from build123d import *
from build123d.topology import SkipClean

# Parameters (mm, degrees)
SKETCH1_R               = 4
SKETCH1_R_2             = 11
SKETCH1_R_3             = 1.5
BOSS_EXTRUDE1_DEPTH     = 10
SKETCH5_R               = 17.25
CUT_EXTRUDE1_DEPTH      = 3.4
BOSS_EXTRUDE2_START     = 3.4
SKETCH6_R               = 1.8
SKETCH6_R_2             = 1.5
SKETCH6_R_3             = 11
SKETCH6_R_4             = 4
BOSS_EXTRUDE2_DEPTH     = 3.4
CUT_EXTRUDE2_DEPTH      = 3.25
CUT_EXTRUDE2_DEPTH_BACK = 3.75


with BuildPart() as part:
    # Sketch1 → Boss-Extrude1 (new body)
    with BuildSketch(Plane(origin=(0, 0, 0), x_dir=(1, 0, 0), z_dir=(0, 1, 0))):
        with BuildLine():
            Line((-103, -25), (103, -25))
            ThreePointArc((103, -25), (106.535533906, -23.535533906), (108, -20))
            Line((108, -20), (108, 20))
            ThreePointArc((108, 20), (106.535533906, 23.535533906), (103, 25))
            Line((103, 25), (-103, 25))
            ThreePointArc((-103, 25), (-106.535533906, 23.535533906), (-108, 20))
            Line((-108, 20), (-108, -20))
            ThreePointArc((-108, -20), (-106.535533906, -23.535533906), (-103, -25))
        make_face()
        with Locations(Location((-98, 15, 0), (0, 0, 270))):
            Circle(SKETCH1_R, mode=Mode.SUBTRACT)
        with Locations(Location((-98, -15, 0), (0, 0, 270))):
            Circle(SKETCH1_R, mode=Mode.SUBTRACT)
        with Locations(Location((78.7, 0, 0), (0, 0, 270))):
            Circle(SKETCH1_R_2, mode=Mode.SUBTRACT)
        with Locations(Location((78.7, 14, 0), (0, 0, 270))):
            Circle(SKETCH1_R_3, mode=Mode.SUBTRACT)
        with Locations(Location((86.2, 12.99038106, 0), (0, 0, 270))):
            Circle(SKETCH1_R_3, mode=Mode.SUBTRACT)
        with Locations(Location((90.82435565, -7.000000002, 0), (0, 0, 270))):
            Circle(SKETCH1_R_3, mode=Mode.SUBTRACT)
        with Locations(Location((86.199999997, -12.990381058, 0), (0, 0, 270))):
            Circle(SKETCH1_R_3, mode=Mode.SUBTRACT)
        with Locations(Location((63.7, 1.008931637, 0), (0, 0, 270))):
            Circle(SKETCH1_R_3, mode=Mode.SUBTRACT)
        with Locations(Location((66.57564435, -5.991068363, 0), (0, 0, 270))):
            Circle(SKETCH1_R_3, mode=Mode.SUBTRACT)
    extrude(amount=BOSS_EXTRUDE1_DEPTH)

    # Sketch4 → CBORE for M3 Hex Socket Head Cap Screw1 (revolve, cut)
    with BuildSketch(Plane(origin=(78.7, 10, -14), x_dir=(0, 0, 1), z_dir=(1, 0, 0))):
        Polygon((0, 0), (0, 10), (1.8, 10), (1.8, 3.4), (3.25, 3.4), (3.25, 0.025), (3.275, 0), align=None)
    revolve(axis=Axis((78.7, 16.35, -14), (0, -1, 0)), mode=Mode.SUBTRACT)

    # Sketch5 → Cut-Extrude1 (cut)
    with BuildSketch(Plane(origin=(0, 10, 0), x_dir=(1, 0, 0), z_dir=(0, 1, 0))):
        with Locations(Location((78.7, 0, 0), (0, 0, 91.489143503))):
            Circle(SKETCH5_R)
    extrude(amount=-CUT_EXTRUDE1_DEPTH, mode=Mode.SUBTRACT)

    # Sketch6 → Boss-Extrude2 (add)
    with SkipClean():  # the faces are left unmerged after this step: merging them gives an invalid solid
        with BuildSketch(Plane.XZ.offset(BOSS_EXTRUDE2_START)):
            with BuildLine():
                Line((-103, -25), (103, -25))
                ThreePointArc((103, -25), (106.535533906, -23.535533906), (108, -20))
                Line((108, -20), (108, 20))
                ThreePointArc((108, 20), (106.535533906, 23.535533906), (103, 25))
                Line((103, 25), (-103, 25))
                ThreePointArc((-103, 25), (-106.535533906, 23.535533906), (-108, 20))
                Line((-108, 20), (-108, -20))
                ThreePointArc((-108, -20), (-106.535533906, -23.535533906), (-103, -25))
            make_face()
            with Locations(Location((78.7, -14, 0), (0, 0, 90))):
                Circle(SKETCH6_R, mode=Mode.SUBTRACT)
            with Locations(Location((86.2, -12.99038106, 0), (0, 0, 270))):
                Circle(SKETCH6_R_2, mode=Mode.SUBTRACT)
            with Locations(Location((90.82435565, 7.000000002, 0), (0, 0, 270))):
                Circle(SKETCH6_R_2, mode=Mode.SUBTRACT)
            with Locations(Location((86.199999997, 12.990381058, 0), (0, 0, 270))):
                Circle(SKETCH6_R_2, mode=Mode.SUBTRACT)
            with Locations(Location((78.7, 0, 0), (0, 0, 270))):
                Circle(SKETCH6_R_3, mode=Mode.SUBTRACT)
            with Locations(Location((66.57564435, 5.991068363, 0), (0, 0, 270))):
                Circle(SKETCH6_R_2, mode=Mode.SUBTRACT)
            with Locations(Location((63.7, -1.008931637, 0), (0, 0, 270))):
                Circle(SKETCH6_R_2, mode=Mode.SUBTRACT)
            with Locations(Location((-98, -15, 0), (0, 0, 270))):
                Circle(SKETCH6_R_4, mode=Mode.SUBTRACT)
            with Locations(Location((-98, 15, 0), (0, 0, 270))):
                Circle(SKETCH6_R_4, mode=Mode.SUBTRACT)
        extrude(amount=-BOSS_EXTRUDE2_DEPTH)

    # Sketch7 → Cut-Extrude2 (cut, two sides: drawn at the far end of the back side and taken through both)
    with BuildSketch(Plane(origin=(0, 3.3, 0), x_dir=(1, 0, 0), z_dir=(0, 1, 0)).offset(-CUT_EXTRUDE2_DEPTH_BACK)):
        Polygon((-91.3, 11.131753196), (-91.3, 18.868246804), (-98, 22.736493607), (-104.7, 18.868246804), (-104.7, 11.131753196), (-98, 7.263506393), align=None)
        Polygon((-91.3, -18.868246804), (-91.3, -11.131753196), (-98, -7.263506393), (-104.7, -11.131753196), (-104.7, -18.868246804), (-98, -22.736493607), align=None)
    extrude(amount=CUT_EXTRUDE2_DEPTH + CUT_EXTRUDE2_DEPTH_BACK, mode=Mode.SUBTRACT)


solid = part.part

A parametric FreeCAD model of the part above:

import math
import FreeCAD as App
import Part
import Sketcher
from FreeCAD import Vector
Q = App.Units.Quantity

doc = App.newDocument("Part")
body = doc.addObject("PartDesign::Body", "Body")

# Sketch on XZ plane
sketch1 = body.newObject("Sketcher::SketchObject", "Sketch")
sketch1.AttachmentSupport = (doc.getObject("XZ_Plane"), [""])
sketch1.MapMode = "FlatFace"
sketch1.addGeometry(Part.LineSegment(Vector(-103, 25, 0), Vector(103, 25, 0)), False)
sketch1.addGeometry(Part.ArcOfCircle(Part.Circle(Vector(103, 20, 0), Vector(0, 0, 1), 5), math.radians(0), math.radians(90)), False)
sketch1.addGeometry(Part.LineSegment(Vector(108, 20, 0), Vector(108, -20, 0)), False)
sketch1.addGeometry(Part.ArcOfCircle(Part.Circle(Vector(103, -20, 0), Vector(0, 0, 1), 5), math.radians(-90), math.radians(0)), False)
sketch1.addGeometry(Part.LineSegment(Vector(103, -25, 0), Vector(-103, -25, 0)), False)
sketch1.addGeometry(Part.ArcOfCircle(Part.Circle(Vector(-103, -20, 0), Vector(0, 0, 1), 5), math.radians(180), math.radians(270)), False)
sketch1.addGeometry(Part.LineSegment(Vector(-108, -20, 0), Vector(-108, 20, 0)), False)
sketch1.addGeometry(Part.ArcOfCircle(Part.Circle(Vector(-103, 20, 0), Vector(0, 0, 1), 5), math.radians(90), math.radians(180)), False)
sketch1.addGeometry(Part.Circle(Vector(-98, 15, 0), Vector(0, 0, 1), 4), False)
sketch1.addGeometry(Part.Circle(Vector(86.2, 13, 0), Vector(0, 0, 1), 1.5), False)
sketch1.addGeometry(Part.Circle(Vector(66.6, 6, 0), Vector(0, 0, 1), 1.5), False)
sketch1.addGeometry(Part.Circle(Vector(90.8, 7, 0), Vector(0, 0, 1), 1.5), False)
sketch1.addGeometry(Part.Circle(Vector(-98, -15, 0), Vector(0, 0, 1), 4), False)
sketch1.addGeometry(Part.Circle(Vector(63.7, -1, 0), Vector(0, 0, 1), 1.5), False)
sketch1.addGeometry(Part.Circle(Vector(78.7, 0, 0), Vector(0, 0, 1), 11), False)
sketch1.addGeometry(Part.Circle(Vector(78.7, -14, 0), Vector(0, 0, 1), 1.5), False)
sketch1.addGeometry(Part.Circle(Vector(86.2, -13, 0), Vector(0, 0, 1), 1.5), False)
sketch1.addConstraint(Sketcher.Constraint("Tangent", 0, 2, 1, 2))
sketch1.addConstraint(Sketcher.Constraint("Tangent", 1, 1, 2, 1))
sketch1.addConstraint(Sketcher.Constraint("Tangent", 2, 2, 3, 2))
sketch1.addConstraint(Sketcher.Constraint("Tangent", 3, 1, 4, 1))
sketch1.addConstraint(Sketcher.Constraint("Tangent", 4, 2, 5, 2))
sketch1.addConstraint(Sketcher.Constraint("Tangent", 5, 1, 6, 1))
sketch1.addConstraint(Sketcher.Constraint("Tangent", 6, 2, 7, 2))
sketch1.addConstraint(Sketcher.Constraint("Tangent", 7, 1, 0, 1))
sketch1.addConstraint(Sketcher.Constraint("Horizontal", 0))
sketch1.addConstraint(Sketcher.Constraint("Vertical", 2))
sketch1.addConstraint(Sketcher.Constraint("Horizontal", 4))
sketch1.addConstraint(Sketcher.Constraint("Vertical", 6))
sketch1.addConstraint(Sketcher.Constraint("Equal", 1, 3))
sketch1.addConstraint(Sketcher.Constraint("Equal", 3, 5))
sketch1.addConstraint(Sketcher.Constraint("Equal", 5, 7))
sketch1.addConstraint(Sketcher.Constraint("Equal", 9, 10))
sketch1.addConstraint(Sketcher.Constraint("Equal", 10, 11))
sketch1.addConstraint(Sketcher.Constraint("Equal", 8, 12))
sketch1.addConstraint(Sketcher.Constraint("Equal", 11, 13))
sketch1.addConstraint(Sketcher.Constraint("Equal", 13, 15))
sketch1.addConstraint(Sketcher.Constraint("Equal", 15, 16))
sketch1.addConstraint(Sketcher.Constraint("Symmetric", 1, 3, 5, 3, -1, 1))
sketch1.addConstraint(Sketcher.Constraint("Symmetric", 8, 3, 12, 3, -1))
sketch1.addConstraint(Sketcher.Constraint("Symmetric", 9, 3, 16, 3, -1))
sketch1.addConstraint(Sketcher.Constraint("PointOnObject", 14, 3, -1))
sketch1.addConstraint(Sketcher.Constraint("Vertical", 14, 3, 15, 3))
sketch1.addConstraint(Sketcher.Constraint("Diameter", 8, Q("8 mm")))
sketch1.addConstraint(Sketcher.Constraint("Diameter", 9, Q("3 mm")))
sketch1.addConstraint(Sketcher.Constraint("Diameter", 14, Q("22 mm")))
sketch1.addConstraint(Sketcher.Constraint("Radius", 1, Q("5 mm")))
sketch1.addConstraint(Sketcher.Constraint("DistanceX", 0, 1, 0, 2, Q("206 mm")))
sketch1.addConstraint(Sketcher.Constraint("DistanceY", 2, 2, 2, 1, Q("40 mm")))
sketch1.addConstraint(Sketcher.Constraint("DistanceX", 8, 3, -1, 1, Q("98 mm")))
sketch1.addConstraint(Sketcher.Constraint("DistanceY", -1, 1, 8, 3, Q("15 mm")))
sketch1.addConstraint(Sketcher.Constraint("DistanceY", -1, 1, 11, 3, Q("7 mm")))
sketch1.addConstraint(Sketcher.Constraint("DistanceY", 15, 3, -1, 1, Q("14 mm")))
sketch1.addConstraint(Sketcher.Constraint("DistanceY", 13, 3, 10, 3, Q("7 mm")))
sketch1.addConstraint(Sketcher.Constraint("DistanceX", 13, 3, 14, 3, Q("15 mm")))
sketch1.addConstraint(Sketcher.Constraint("DistanceX", -1, 1, 9, 3, Q("86.2 mm")))
sketch1.addConstraint(Sketcher.Constraint("DistanceX", -1, 1, 13, 3, Q("63.7 mm")))
sketch1.addConstraint(Sketcher.Constraint("DistanceY", -1, 1, 9, 3, Q("12.990381 mm")))
sketch1.addConstraint(Sketcher.Constraint("DistanceY", -1, 1, 10, 3, Q("5.991068 mm")))
sketch1.addConstraint(Sketcher.Constraint("DistanceX", 10, 3, 11, 3, Q("24.248711 mm")))
sketch1.addConstraint(Sketcher.Constraint("DistanceX", -1, 1, 10, 3, Q("66.575644 mm")))
pad1 = body.newObject("PartDesign::Pad", "Pad")
pad1.Profile = sketch1
pad1.Length = 10
pad1.Reversed = True

# Sketch on YZ plane
sketch2 = body.newObject("Sketcher::SketchObject", "Sketch001")
sketch2.AttachmentSupport = (doc.getObject("YZ_Plane"), [""])
sketch2.MapMode = "FlatFace"
sketch2.AttachmentOffset = App.Placement(Vector(0, 0, 78.7), App.Rotation())
sketch2.addGeometry(Part.LineSegment(Vector(0, -14, 0), Vector(10, -14, 0)), False)
sketch2.addGeometry(Part.LineSegment(Vector(10, -14, 0), Vector(10, -10.725, 0)), False)
sketch2.addGeometry(Part.LineSegment(Vector(10, -10.725, 0), Vector(9.975, -10.75, 0)), False)
sketch2.addGeometry(Part.LineSegment(Vector(9.975, -10.75, 0), Vector(6.6, -10.75, 0)), False)
sketch2.addGeometry(Part.LineSegment(Vector(6.6, -10.75, 0), Vector(6.6, -12.2, 0)), False)
sketch2.addGeometry(Part.LineSegment(Vector(6.6, -12.2, 0), Vector(0, -12.2, 0)), False)
sketch2.addGeometry(Part.LineSegment(Vector(0, -12.2, 0), Vector(0, -14, 0)), False)
sketch2.addGeometry(Part.LineSegment(Vector(10, -14, 0), Vector(0, -14, 0)), True)  # axis
sketch2.addConstraint(Sketcher.Constraint("Coincident", 0, 2, 1, 1))
sketch2.addConstraint(Sketcher.Constraint("Coincident", 1, 2, 2, 1))
sketch2.addConstraint(Sketcher.Constraint("Coincident", 2, 2, 3, 1))
sketch2.addConstraint(Sketcher.Constraint("Coincident", 3, 2, 4, 1))
sketch2.addConstraint(Sketcher.Constraint("Coincident", 4, 2, 5, 1))
sketch2.addConstraint(Sketcher.Constraint("Coincident", 5, 2, 6, 1))
sketch2.addConstraint(Sketcher.Constraint("Coincident", 6, 2, 0, 1))
sketch2.addConstraint(Sketcher.Constraint("Horizontal", 0))
sketch2.addConstraint(Sketcher.Constraint("Vertical", 1))
sketch2.addConstraint(Sketcher.Constraint("Horizontal", 3))
sketch2.addConstraint(Sketcher.Constraint("Vertical", 4))
sketch2.addConstraint(Sketcher.Constraint("Horizontal", 5))
sketch2.addConstraint(Sketcher.Constraint("Vertical", 6))
sketch2.addConstraint(Sketcher.Constraint("Horizontal", 7))
sketch2.addConstraint(Sketcher.Constraint("Coincident", 7, 1, 0, 2))
sketch2.addConstraint(Sketcher.Constraint("PointOnObject", 5, 2, -2))
sketch2.addConstraint(Sketcher.Constraint("PointOnObject", 7, 2, -2))
sketch2.addConstraint(Sketcher.Constraint("DistanceX", 0, 1, 0, 2, Q("10 mm")))
sketch2.addConstraint(Sketcher.Constraint("Angle", 2, Q("-135 deg")))
sketch2.addConstraint(Sketcher.Constraint("DistanceX", 5, 2, 5, 1, Q("6.6 mm")))
sketch2.addConstraint(Sketcher.Constraint("DistanceY", 6, 2, 6, 1, Q("1.8 mm")))
sketch2.addConstraint(Sketcher.Constraint("DistanceY", 0, 2, -1, 1, Q("14 mm")))
sketch2.addConstraint(Sketcher.Constraint("DistanceY", 4, 2, 4, 1, Q("1.45 mm")))
sketch2.addConstraint(Sketcher.Constraint("DistanceX", 3, 2, 3, 1, Q("3.375 mm")))
groove = body.newObject("PartDesign::Groove", "Groove")
groove.Profile = sketch2
groove.ReferenceAxis = (sketch2, ["Axis0"])
groove.Angle = 360

# Sketch on XZ plane
sketch3 = body.newObject("Sketcher::SketchObject", "Sketch002")
sketch3.AttachmentSupport = (doc.getObject("XZ_Plane"), [""])
sketch3.MapMode = "FlatFace"
sketch3.AttachmentOffset = App.Placement(Vector(0, 0, -10), App.Rotation())
sketch3.addGeometry(Part.Circle(Vector(79, 0, 0), Vector(0, 0, 1), 17), False)
sketch3.addConstraint(Sketcher.Constraint("PointOnObject", 0, 3, -1))
sketch3.addConstraint(Sketcher.Constraint("Diameter", 0, Q("34.5 mm")))
sketch3.addConstraint(Sketcher.Constraint("DistanceX", -1, 1, 0, 3, Q("78.7 mm")))
pocket1 = body.newObject("PartDesign::Pocket", "Pocket")
pocket1.Profile = sketch3
pocket1.Length = 3.4
pocket1.Reversed = True

# Sketch on XZ plane
sketch4 = body.newObject("Sketcher::SketchObject", "Sketch003")
sketch4.AttachmentSupport = (doc.getObject("XZ_Plane"), [""])
sketch4.MapMode = "FlatFace"
sketch4.AttachmentOffset = App.Placement(Vector(0, 0, 3.4), App.Rotation())
sketch4.addGeometry(Part.LineSegment(Vector(-103, -25, 0), Vector(103, -25, 0)), False)
sketch4.addGeometry(Part.ArcOfCircle(Part.Circle(Vector(103, -20, 0), Vector(0, 0, 1), 5), math.radians(-90), math.radians(0)), False)
sketch4.addGeometry(Part.LineSegment(Vector(108, -20, 0), Vector(108, 20, 0)), False)
sketch4.addGeometry(Part.ArcOfCircle(Part.Circle(Vector(103, 20, 0), Vector(0, 0, 1), 5), math.radians(0), math.radians(90)), False)
sketch4.addGeometry(Part.LineSegment(Vector(103, 25, 0), Vector(-103, 25, 0)), False)
sketch4.addGeometry(Part.ArcOfCircle(Part.Circle(Vector(-103, 20, 0), Vector(0, 0, 1), 5), math.radians(90), math.radians(180)), False)
sketch4.addGeometry(Part.LineSegment(Vector(-108, 20, 0), Vector(-108, -20, 0)), False)
sketch4.addGeometry(Part.ArcOfCircle(Part.Circle(Vector(-103, -20, 0), Vector(0, 0, 1), 5), math.radians(180), math.radians(270)), False)
sketch4.addGeometry(Part.Circle(Vector(-98, -15, 0), Vector(0, 0, 1), 4), False)
sketch4.addGeometry(Part.Circle(Vector(78.7, -14, 0), Vector(0, 0, 1), 1.8), False)
sketch4.addGeometry(Part.Circle(Vector(86.2, -13, 0), Vector(0, 0, 1), 1.5), False)
sketch4.addGeometry(Part.Circle(Vector(63.7, -1, 0), Vector(0, 0, 1), 1.5), False)
sketch4.addGeometry(Part.Circle(Vector(-98, 15, 0), Vector(0, 0, 1), 4), False)
sketch4.addGeometry(Part.Circle(Vector(78.7, 0, 0), Vector(0, 0, 1), 11), False)
sketch4.addGeometry(Part.Circle(Vector(66.6, 6, 0), Vector(0, 0, 1), 1.5), False)
sketch4.addGeometry(Part.Circle(Vector(90.8, 7, 0), Vector(0, 0, 1), 1.5), False)
sketch4.addGeometry(Part.Circle(Vector(86.2, 13, 0), Vector(0, 0, 1), 1.5), False)
sketch4.addConstraint(Sketcher.Constraint("Tangent", 0, 2, 1, 1))
sketch4.addConstraint(Sketcher.Constraint("Tangent", 1, 2, 2, 1))
sketch4.addConstraint(Sketcher.Constraint("Tangent", 2, 2, 3, 1))
sketch4.addConstraint(Sketcher.Constraint("Tangent", 3, 2, 4, 1))
sketch4.addConstraint(Sketcher.Constraint("Tangent", 4, 2, 5, 1))
sketch4.addConstraint(Sketcher.Constraint("Tangent", 5, 2, 6, 1))
sketch4.addConstraint(Sketcher.Constraint("Tangent", 6, 2, 7, 1))
sketch4.addConstraint(Sketcher.Constraint("Tangent", 7, 2, 0, 1))
sketch4.addConstraint(Sketcher.Constraint("Horizontal", 0))
sketch4.addConstraint(Sketcher.Constraint("Vertical", 2))
sketch4.addConstraint(Sketcher.Constraint("Horizontal", 4))
sketch4.addConstraint(Sketcher.Constraint("Vertical", 6))
sketch4.addConstraint(Sketcher.Constraint("Equal", 1, 3))
sketch4.addConstraint(Sketcher.Constraint("Equal", 3, 5))
sketch4.addConstraint(Sketcher.Constraint("Equal", 5, 7))
sketch4.addConstraint(Sketcher.Constraint("Equal", 10, 11))
sketch4.addConstraint(Sketcher.Constraint("Equal", 8, 12))
sketch4.addConstraint(Sketcher.Constraint("Equal", 11, 14))
sketch4.addConstraint(Sketcher.Constraint("Equal", 14, 15))
sketch4.addConstraint(Sketcher.Constraint("Equal", 15, 16))
sketch4.addConstraint(Sketcher.Constraint("Symmetric", 1, 3, 5, 3, -1, 1))
sketch4.addConstraint(Sketcher.Constraint("Symmetric", 8, 3, 12, 3, -1))
sketch4.addConstraint(Sketcher.Constraint("Symmetric", 10, 3, 16, 3, -1))
sketch4.addConstraint(Sketcher.Constraint("PointOnObject", 13, 3, -1))
sketch4.addConstraint(Sketcher.Constraint("Vertical", 9, 3, 13, 3))
sketch4.addConstraint(Sketcher.Constraint("Diameter", 8, Q("8 mm")))
sketch4.addConstraint(Sketcher.Constraint("Diameter", 10, Q("3 mm")))
sketch4.addConstraint(Sketcher.Constraint("Diameter", 13, Q("22 mm")))
sketch4.addConstraint(Sketcher.Constraint("Radius", 1, Q("5 mm")))
sketch4.addConstraint(Sketcher.Constraint("Diameter", 9, Q("3.6 mm")))
sketch4.addConstraint(Sketcher.Constraint("DistanceX", 0, 1, 0, 2, Q("206 mm")))
sketch4.addConstraint(Sketcher.Constraint("DistanceY", 2, 1, 2, 2, Q("40 mm")))
sketch4.addConstraint(Sketcher.Constraint("DistanceX", 8, 3, -1, 1, Q("98 mm")))
sketch4.addConstraint(Sketcher.Constraint("DistanceY", 8, 3, -1, 1, Q("15 mm")))
sketch4.addConstraint(Sketcher.Constraint("DistanceY", 9, 3, -1, 1, Q("14 mm")))
sketch4.addConstraint(Sketcher.Constraint("DistanceY", -1, 1, 15, 3, Q("7 mm")))
sketch4.addConstraint(Sketcher.Constraint("DistanceX", 11, 3, 9, 3, Q("15 mm")))
sketch4.addConstraint(Sketcher.Constraint("DistanceY", 11, 3, 14, 3, Q("7 mm")))
sketch4.addConstraint(Sketcher.Constraint("DistanceX", -1, 1, 9, 3, Q("78.7 mm")))
sketch4.addConstraint(Sketcher.Constraint("DistanceX", -1, 1, 10, 3, Q("86.2 mm")))
sketch4.addConstraint(Sketcher.Constraint("DistanceY", 10, 3, -1, 1, Q("12.990381 mm")))
sketch4.addConstraint(Sketcher.Constraint("DistanceY", 11, 3, -1, 1, Q("1.008932 mm")))
sketch4.addConstraint(Sketcher.Constraint("DistanceX", 14, 3, 15, 3, Q("24.248711 mm")))
sketch4.addConstraint(Sketcher.Constraint("DistanceX", -1, 1, 14, 3, Q("66.575644 mm")))
pad2 = body.newObject("PartDesign::Pad", "Pad001")
pad2.Profile = sketch4
pad2.Length = 3.4
pad2.Reversed = True

# Sketch on XZ plane
sketch5 = body.newObject("Sketcher::SketchObject", "Sketch004")
sketch5.AttachmentSupport = (doc.getObject("XZ_Plane"), [""])
sketch5.MapMode = "FlatFace"
sketch5.AttachmentOffset = App.Placement(Vector(0, 0, -3.3), App.Rotation())
sketch5.addGeometry(Part.LineSegment(Vector(-91, -11, 0), Vector(-91, -19, 0)), False)
sketch5.addGeometry(Part.LineSegment(Vector(-91, -19, 0), Vector(-98, -23, 0)), False)
sketch5.addGeometry(Part.LineSegment(Vector(-98, -23, 0), Vector(-105, -19, 0)), False)
sketch5.addGeometry(Part.LineSegment(Vector(-105, -19, 0), Vector(-105, -11, 0)), False)
sketch5.addGeometry(Part.LineSegment(Vector(-105, -11, 0), Vector(-98, -7, 0)), False)
sketch5.addGeometry(Part.LineSegment(Vector(-98, -7, 0), Vector(-91, -11, 0)), False)
sketch5.addGeometry(Part.LineSegment(Vector(-91, 19, 0), Vector(-91, 11, 0)), False)
sketch5.addGeometry(Part.LineSegment(Vector(-91, 11, 0), Vector(-98, 7, 0)), False)
sketch5.addGeometry(Part.LineSegment(Vector(-98, 7, 0), Vector(-105, 11, 0)), False)
sketch5.addGeometry(Part.LineSegment(Vector(-105, 11, 0), Vector(-105, 19, 0)), False)
sketch5.addGeometry(Part.LineSegment(Vector(-105, 19, 0), Vector(-98, 23, 0)), False)
sketch5.addGeometry(Part.LineSegment(Vector(-98, 23, 0), Vector(-91, 19, 0)), False)
sketch5.addConstraint(Sketcher.Constraint("Coincident", 0, 2, 1, 1))
sketch5.addConstraint(Sketcher.Constraint("Coincident", 1, 2, 2, 1))
sketch5.addConstraint(Sketcher.Constraint("Coincident", 2, 2, 3, 1))
sketch5.addConstraint(Sketcher.Constraint("Coincident", 3, 2, 4, 1))
sketch5.addConstraint(Sketcher.Constraint("Coincident", 4, 2, 5, 1))
sketch5.addConstraint(Sketcher.Constraint("Coincident", 5, 2, 0, 1))
sketch5.addConstraint(Sketcher.Constraint("Coincident", 6, 2, 7, 1))
sketch5.addConstraint(Sketcher.Constraint("Coincident", 7, 2, 8, 1))
sketch5.addConstraint(Sketcher.Constraint("Coincident", 8, 2, 9, 1))
sketch5.addConstraint(Sketcher.Constraint("Coincident", 9, 2, 10, 1))
sketch5.addConstraint(Sketcher.Constraint("Coincident", 10, 2, 11, 1))
sketch5.addConstraint(Sketcher.Constraint("Coincident", 11, 2, 6, 1))
sketch5.addConstraint(Sketcher.Constraint("Vertical", 0))
sketch5.addConstraint(Sketcher.Constraint("Vertical", 3))
sketch5.addConstraint(Sketcher.Constraint("Vertical", 6))
sketch5.addConstraint(Sketcher.Constraint("Vertical", 9))
sketch5.addConstraint(Sketcher.Constraint("Symmetric", 5, 2, 6, 2, -1))
sketch5.addConstraint(Sketcher.Constraint("Symmetric", 4, 2, 7, 2, -1))
sketch5.addConstraint(Sketcher.Constraint("Symmetric", 3, 2, 8, 2, -1))
sketch5.addConstraint(Sketcher.Constraint("Symmetric", 1, 2, 10, 2, -1))
sketch5.addConstraint(Sketcher.Constraint("Parallel", 1, 4))
sketch5.addConstraint(Sketcher.Constraint("Parallel", 2, 5))
sketch5.addConstraint(Sketcher.Constraint("Parallel", 4, 7))
sketch5.addConstraint(Sketcher.Constraint("Parallel", 7, 10))
sketch5.addConstraint(Sketcher.Constraint("Parallel", 8, 11))
sketch5.addConstraint(Sketcher.Constraint("Horizontal", 0, 2, 2, 2))
sketch5.addConstraint(Sketcher.Constraint("Horizontal", 3, 2, 5, 2))
sketch5.addConstraint(Sketcher.Constraint("Angle", 1, Q("-150 deg")))
sketch5.addConstraint(Sketcher.Constraint("DistanceX", 1, 2, -1, 1, Q("98 mm")))
sketch5.addConstraint(Sketcher.Constraint("DistanceY", 0, 2, 6, 2, Q("30 mm")))
sketch5.addConstraint(Sketcher.Constraint("DistanceX", 0, 2, -1, 1, Q("91.3 mm")))
sketch5.addConstraint(Sketcher.Constraint("DistanceY", 0, 2, 0, 1, Q("7.736494 mm")))
pocket2 = body.newObject("PartDesign::Pocket", "Pocket001")
pocket2.Profile = sketch5
pocket2.Type = "TwoLengths"
pocket2.Length = 3.25
pocket2.Length2 = 3.75

doc.recompute()
